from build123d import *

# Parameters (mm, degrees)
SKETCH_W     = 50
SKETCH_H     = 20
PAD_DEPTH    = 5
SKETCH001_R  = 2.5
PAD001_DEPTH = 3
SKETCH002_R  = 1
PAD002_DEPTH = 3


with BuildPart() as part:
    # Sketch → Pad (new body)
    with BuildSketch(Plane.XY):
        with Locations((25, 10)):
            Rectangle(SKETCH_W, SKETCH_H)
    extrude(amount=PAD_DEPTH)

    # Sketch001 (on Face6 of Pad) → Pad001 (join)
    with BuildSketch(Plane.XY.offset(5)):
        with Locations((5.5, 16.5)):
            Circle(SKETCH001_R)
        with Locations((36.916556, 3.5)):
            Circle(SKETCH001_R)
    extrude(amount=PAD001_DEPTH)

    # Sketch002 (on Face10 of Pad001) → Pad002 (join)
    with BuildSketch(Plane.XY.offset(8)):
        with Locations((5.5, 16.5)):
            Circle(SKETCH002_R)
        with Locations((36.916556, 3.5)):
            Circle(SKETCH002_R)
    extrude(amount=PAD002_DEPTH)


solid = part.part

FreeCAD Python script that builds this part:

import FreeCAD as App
import Part
import Sketcher
from FreeCAD import Vector


def add_polygon(sketch, points):
    """Adds a closed chain of lines whose ends are joined by coincident constraints."""
    first, n = sketch.GeometryCount, len(points)
    for a, b in zip(points, points[1:] + points[:1]):
        sketch.addGeometry(Part.LineSegment(App.Vector(*a, 0), App.Vector(*b, 0)), False)
    for i in range(n):
        sketch.addConstraint(Sketcher.Constraint("Coincident", first + i, 2, first + (i + 1) % n, 1))

doc = App.newDocument("Part")
body = doc.addObject("PartDesign::Body", "Body")

# Sketch on XY plane
sketch1 = body.newObject("Sketcher::SketchObject", "Sketch")
sketch1.AttachmentSupport = (doc.getObject("XY_Plane"), [""])
sketch1.MapMode = "FlatFace"
add_polygon(sketch1, [(0, 20), (0, 0), (50, 0), (50, 20)])  # lines 0-3
sketch1.addConstraint([
    Sketcher.Constraint("Vertical", 0),
    Sketcher.Constraint("Horizontal", 1),
    Sketcher.Constraint("Vertical", 2),
    Sketcher.Constraint("Horizontal", 3),
    Sketcher.Constraint("Coincident", 0, 2, -1, 1),
    Sketcher.Constraint("DistanceX", 1, 1, 1, 2, 50.0),
    Sketcher.Constraint("DistanceY", 0, 2, 0, 1, 20.0),
])
pad1 = body.newObject("PartDesign::Pad", "Pad")
pad1.Profile = sketch1
pad1.Length = 5

# Sketch on XY plane
sketch2 = body.newObject("Sketcher::SketchObject", "Sketch001")
sketch2.AttachmentSupport = (doc.getObject("XY_Plane"), [""])
sketch2.MapMode = "FlatFace"
sketch2.AttachmentOffset = App.Placement(Vector(0, 0, 5), App.Rotation())
sketch2.addGeometry([
    Part.Circle(Vector(5.5, 16.5, 0), Vector(0, 0, 1), 2.5),
    Part.Circle(Vector(36.9, 3.5, 0), Vector(0, 0, 1), 2.5),
], False)
sketch2.addConstraint([
    Sketcher.Constraint("Equal", 0, 1),
    Sketcher.Constraint("Diameter", 0, 5.0),
    Sketcher.Constraint("DistanceY", 1, 3, 0, 3, 13.0),
    Sketcher.Constraint("DistanceX", -1, 1, 0, 3, 5.5),
    Sketcher.Constraint("DistanceY", -1, 1, 0, 3, 16.5),
    Sketcher.Constraint("DistanceX", -1, 1, 1, 3, 36.916556),
])
pad2 = body.newObject("PartDesign::Pad", "Pad001")
pad2.Profile = sketch2
pad2.Length = 3

# Sketch on XY plane
sketch3 = body.newObject("Sketcher::SketchObject", "Sketch002")
sketch3.AttachmentSupport = (doc.getObject("XY_Plane"), [""])
sketch3.MapMode = "FlatFace"
sketch3.AttachmentOffset = App.Placement(Vector(0, 0, 8), App.Rotation())
sketch3.addGeometry([
    Part.Circle(Vector(5.5, 16.5, 0), Vector(0, 0, 1), 1),
    Part.Circle(Vector(36.9, 3.5, 0), Vector(0, 0, 1), 1),
], False)
sketch3.addConstraint([
    Sketcher.Constraint("Equal", 0, 1),
    Sketcher.Constraint("Diameter", 0, 2.0),
    Sketcher.Constraint("DistanceY", 1, 3, 0, 3, 13.0),
    Sketcher.Constraint("DistanceX", -1, 1, 0, 3, 5.5),
    Sketcher.Constraint("DistanceY", -1, 1, 0, 3, 16.5),
    Sketcher.Constraint("DistanceX", -1, 1, 1, 3, 36.916556),
])
pad3 = body.newObject("PartDesign::Pad", "Pad002")
pad3.Profile = sketch3
pad3.Length = 3

doc.recompute()
